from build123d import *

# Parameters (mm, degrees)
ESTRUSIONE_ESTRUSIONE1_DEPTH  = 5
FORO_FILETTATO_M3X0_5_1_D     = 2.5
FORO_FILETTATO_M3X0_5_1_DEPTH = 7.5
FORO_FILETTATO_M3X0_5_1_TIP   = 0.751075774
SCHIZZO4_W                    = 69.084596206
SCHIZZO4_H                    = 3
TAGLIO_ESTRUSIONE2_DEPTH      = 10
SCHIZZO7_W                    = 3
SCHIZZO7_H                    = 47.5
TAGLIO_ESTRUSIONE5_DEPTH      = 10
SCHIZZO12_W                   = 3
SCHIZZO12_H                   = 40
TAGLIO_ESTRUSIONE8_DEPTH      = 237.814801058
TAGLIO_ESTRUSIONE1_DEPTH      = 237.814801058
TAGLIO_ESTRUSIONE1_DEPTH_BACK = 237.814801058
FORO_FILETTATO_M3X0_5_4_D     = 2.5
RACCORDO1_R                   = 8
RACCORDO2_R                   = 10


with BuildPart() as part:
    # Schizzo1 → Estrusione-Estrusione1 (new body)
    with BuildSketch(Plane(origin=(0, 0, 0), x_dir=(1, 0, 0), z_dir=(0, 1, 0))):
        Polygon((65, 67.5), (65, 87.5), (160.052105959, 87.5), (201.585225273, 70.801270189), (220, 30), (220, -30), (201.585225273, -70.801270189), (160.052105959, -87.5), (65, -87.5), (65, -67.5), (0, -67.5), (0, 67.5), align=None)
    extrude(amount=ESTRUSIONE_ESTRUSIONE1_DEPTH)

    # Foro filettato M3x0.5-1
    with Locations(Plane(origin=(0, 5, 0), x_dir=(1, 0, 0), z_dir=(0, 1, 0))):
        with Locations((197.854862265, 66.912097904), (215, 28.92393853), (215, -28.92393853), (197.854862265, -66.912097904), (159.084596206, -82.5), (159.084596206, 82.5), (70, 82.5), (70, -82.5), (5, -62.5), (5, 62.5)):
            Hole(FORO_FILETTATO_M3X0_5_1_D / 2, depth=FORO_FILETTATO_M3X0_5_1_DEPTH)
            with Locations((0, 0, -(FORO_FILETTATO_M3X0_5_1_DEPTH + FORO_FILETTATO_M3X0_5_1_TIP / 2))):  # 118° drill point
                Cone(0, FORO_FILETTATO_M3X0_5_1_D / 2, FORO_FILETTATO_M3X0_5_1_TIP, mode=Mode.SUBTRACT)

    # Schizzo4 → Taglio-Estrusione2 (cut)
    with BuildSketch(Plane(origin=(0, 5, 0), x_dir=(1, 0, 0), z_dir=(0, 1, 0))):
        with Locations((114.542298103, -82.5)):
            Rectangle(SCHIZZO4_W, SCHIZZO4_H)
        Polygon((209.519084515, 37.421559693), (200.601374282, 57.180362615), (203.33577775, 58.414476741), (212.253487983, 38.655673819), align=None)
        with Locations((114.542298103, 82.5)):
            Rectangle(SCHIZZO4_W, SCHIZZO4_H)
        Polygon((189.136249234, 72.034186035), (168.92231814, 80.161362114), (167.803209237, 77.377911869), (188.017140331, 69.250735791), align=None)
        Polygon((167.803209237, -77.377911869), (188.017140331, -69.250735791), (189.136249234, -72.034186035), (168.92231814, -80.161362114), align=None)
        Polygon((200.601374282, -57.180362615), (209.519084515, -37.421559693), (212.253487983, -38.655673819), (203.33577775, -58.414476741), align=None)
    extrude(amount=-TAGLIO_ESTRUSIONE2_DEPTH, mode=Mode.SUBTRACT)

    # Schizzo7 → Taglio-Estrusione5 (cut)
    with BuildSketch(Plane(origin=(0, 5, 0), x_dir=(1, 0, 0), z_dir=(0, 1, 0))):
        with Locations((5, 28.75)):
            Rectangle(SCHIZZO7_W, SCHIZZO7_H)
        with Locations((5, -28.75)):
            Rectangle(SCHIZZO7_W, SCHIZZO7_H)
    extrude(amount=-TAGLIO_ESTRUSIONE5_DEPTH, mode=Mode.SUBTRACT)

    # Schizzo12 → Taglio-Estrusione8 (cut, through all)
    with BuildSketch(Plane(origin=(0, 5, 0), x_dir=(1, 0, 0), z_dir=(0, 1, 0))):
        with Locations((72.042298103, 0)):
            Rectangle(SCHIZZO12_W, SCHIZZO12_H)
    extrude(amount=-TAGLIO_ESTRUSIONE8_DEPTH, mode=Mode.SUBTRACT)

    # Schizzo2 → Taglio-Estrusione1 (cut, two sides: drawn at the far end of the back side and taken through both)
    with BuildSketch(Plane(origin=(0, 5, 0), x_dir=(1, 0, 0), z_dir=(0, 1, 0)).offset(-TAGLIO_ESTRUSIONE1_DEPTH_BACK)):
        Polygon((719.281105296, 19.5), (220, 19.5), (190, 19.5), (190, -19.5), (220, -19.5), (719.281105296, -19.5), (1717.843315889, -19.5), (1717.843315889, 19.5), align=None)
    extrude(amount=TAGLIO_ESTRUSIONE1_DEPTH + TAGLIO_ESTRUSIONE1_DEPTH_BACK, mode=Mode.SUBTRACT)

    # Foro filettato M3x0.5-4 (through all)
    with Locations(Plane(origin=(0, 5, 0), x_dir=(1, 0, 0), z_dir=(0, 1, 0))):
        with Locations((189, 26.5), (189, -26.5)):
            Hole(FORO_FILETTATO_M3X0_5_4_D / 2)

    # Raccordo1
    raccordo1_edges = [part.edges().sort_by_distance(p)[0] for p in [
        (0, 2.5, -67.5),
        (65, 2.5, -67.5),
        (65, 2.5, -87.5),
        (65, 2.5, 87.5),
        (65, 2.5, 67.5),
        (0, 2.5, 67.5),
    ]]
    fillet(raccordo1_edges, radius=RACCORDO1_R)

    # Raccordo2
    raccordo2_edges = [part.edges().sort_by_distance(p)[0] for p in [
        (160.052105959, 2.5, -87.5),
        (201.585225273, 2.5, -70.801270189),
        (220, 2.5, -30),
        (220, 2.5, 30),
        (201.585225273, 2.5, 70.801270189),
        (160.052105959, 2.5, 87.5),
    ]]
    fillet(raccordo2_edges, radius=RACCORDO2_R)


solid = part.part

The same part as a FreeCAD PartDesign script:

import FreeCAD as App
import Part
import Sketcher
from FreeCAD import Vector
Q = App.Units.Quantity


def edges_at(feature, points):
    """Names of the edges that pass closest to the given points."""
    edges = feature.Shape.Edges
    near = lambda p: min(range(len(edges)), key=lambda i: edges[i].distToShape(Part.Vertex(*p))[0])
    return sorted({f"Edge{near(p) + 1}" for p in points})


def add_polygon(sketch, points):
    """Adds a closed chain of lines whose ends are joined by coincident constraints."""
    first, n = sketch.GeometryCount, len(points)
    for a, b in zip(points, points[1:] + points[:1]):
        sketch.addGeometry(Part.LineSegment(App.Vector(*a, 0), App.Vector(*b, 0)), False)
    for i in range(n):
        sketch.addConstraint(Sketcher.Constraint("Coincident", first + i, 2, first + (i + 1) % n, 1))

doc = App.newDocument("Part")
body = doc.addObject("PartDesign::Body", "Body")

sketch1 = body.newObject("Sketcher::SketchObject", "Sketch")
sketch1.AttachmentSupport = (doc.getObject("XZ_Plane"), [""])
sketch1.MapMode = "FlatFace"
add_polygon(sketch1, [(65, -88), (65, -68), (0, -68), (0, 68), (65, 68), (65, 88), (160, 88), (202, 71), (220, 30), (220, -30), (202, -71), (160, -88)])
sketch1.addConstraint([
    Sketcher.Constraint("Vertical", 0),
    Sketcher.Constraint("Horizontal", 1),
    Sketcher.Constraint("Vertical", 2),
    Sketcher.Constraint("Horizontal", 3),
    Sketcher.Constraint("Vertical", 4),
    Sketcher.Constraint("Horizontal", 5),
    Sketcher.Constraint("Vertical", 8),
    Sketcher.Constraint("Horizontal", 11),
    Sketcher.Constraint("Symmetric", 1, 2, 2, 2, -1, 1),
    Sketcher.Constraint("Symmetric", 6, 2, 9, 2, -1),
    Sketcher.Constraint("Symmetric", 5, 2, 10, 2, -1),
    Sketcher.Constraint("Vertical", 0, 2, 3, 2),
    Sketcher.Constraint("Equal", 6, 7),
    Sketcher.Constraint("Equal", 7, 9),
    Sketcher.Constraint("DistanceX", 1, 2, 1, 1, Q("65 mm")),
    Sketcher.Constraint("DistanceY", 0, 1, 0, 2, Q("20 mm")),
    Sketcher.Constraint("DistanceY", 2, 1, 2, 2, Q("135 mm")),
    Sketcher.Constraint("DistanceY", 8, 2, 8, 1, Q("60 mm")),
    Sketcher.Constraint("DistanceX", -1, 1, 7, 2, Q("220 mm")),
    Sketcher.Constraint("DistanceX", 5, 1, 5, 2, Q("95.052106 mm")),
    Sketcher.Constraint("DistanceY", -1, 1, 6, 2, Q("70.80127 mm")),
])
pad1 = body.newObject("PartDesign::Pad", "Pad")
pad1.Profile = sketch1
pad1.Length = 5
pad1.Reversed = True

sketch2 = body.newObject("Sketcher::SketchObject", "Sketch001")
sketch2.AttachmentSupport = (doc.getObject("XZ_Plane"), [""])
sketch2.MapMode = "FlatFace"
sketch2.AttachmentOffset = App.Placement(Vector(0, 0, -5), App.Rotation())
sketch2.addGeometry([
    Part.Circle(Vector(197.9, -66.9, 0), Vector(0, 0, 1), 1.2),
    Part.Circle(Vector(215, -28.9, 0), Vector(0, 0, 1), 1.2),
    Part.Circle(Vector(215, 28.9, 0), Vector(0, 0, 1), 1.2),
    Part.Circle(Vector(197.9, 66.9, 0), Vector(0, 0, 1), 1.2),
    Part.Circle(Vector(159.1, 82.5, 0), Vector(0, 0, 1), 1.2),
    Part.Circle(Vector(159.1, -82.5, 0), Vector(0, 0, 1), 1.2),
    Part.Circle(Vector(70, -82.5, 0), Vector(0, 0, 1), 1.2),
    Part.Circle(Vector(70, 82.5, 0), Vector(0, 0, 1), 1.2),
    Part.Circle(Vector(5, 62.5, 0), Vector(0, 0, 1), 1.2),
    Part.Circle(Vector(5, -62.5, 0), Vector(0, 0, 1), 1.2),
], False)
sketch2.addConstraint([
    Sketcher.Constraint("Equal", 0, 1),
    Sketcher.Constraint("Equal", 1, 2),
    Sketcher.Constraint("Equal", 2, 3),
    Sketcher.Constraint("Equal", 3, 4),
    Sketcher.Constraint("Equal", 4, 5),
    Sketcher.Constraint("Equal", 5, 6),
    Sketcher.Constraint("Equal", 6, 7),
    Sketcher.Constraint("Equal", 7, 8),
    Sketcher.Constraint("Equal", 8, 9),
    Sketcher.Constraint("Symmetric", 1, 3, 2, 3, -1),
    Sketcher.Constraint("Symmetric", 0, 3, 3, 3, -1),
    Sketcher.Constraint("Symmetric", 4, 3, 5, 3, -1),
    Sketcher.Constraint("Symmetric", 6, 3, 7, 3, -1),
    Sketcher.Constraint("Symmetric", 8, 3, 9, 3, -1),
    Sketcher.Constraint("Horizontal", 5, 3, 6, 3),
    Sketcher.Constraint("Diameter", 0, Q("2.5 mm")),
    Sketcher.Constraint("DistanceX", -1, 1, 1, 3, Q("215 mm")),
    Sketcher.Constraint("DistanceX", -1, 1, 6, 3, Q("70 mm")),
    Sketcher.Constraint("DistanceX", -1, 1, 8, 3, Q("5 mm")),
    Sketcher.Constraint("DistanceY", 5, 3, 4, 3, Q("165 mm")),
    Sketcher.Constraint("DistanceY", 8, 3, 7, 3, Q("20 mm")),
    Sketcher.Constraint("DistanceY", 1, 3, -1, 1, Q("28.923939 mm")),
    Sketcher.Constraint("DistanceY", 0, 3, 1, 3, Q("37.988159 mm")),
    Sketcher.Constraint("DistanceX", -1, 1, 0, 3, Q("197.854862 mm")),
    Sketcher.Constraint("DistanceX", -1, 1, 4, 3, Q("159.084596 mm")),
])
doc.recompute()
hole = body.newObject("PartDesign::Hole", "Hole")
hole.Profile = sketch2
hole.ThreadType = "None"
hole.Diameter = 2.5
hole.DepthType = "Dimension"
hole.Depth = 7.5
hole.DrillPoint = "Angled"
hole.DrillPointAngle = 118
hole.Reversed = True

sketch3 = body.newObject("Sketcher::SketchObject", "Sketch002")
sketch3.AttachmentSupport = (doc.getObject("XZ_Plane"), [""])
sketch3.MapMode = "FlatFace"
sketch3.AttachmentOffset = App.Placement(Vector(0, 0, -5), App.Rotation())
add_polygon(sketch3, [(80, 81), (80, 84), (149.1, 84), (149.1, 81)])
add_polygon(sketch3, [(200.6, -57.2), (209.5, -37.4), (212.3, -38.7), (203.3, -58.4)])
add_polygon(sketch3, [(80, -84), (80, -81), (149.1, -81), (149.1, -84)])
add_polygon(sketch3, [(189.1, -72), (168.9, -80.2), (167.8, -77.4), (188, -69.3)])
add_polygon(sketch3, [(188, 69.3), (167.8, 77.4), (168.9, 80.2), (189.1, 72)])
add_polygon(sketch3, [(209.5, 37.4), (200.6, 57.2), (203.3, 58.4), (212.3, 38.7)])
sketch3.addConstraint([
    Sketcher.Constraint("Vertical", 0),
    Sketcher.Constraint("Horizontal", 1),
    Sketcher.Constraint("Vertical", 2),
    Sketcher.Constraint("Horizontal", 3),
    Sketcher.Constraint("Vertical", 8),
    Sketcher.Constraint("Horizontal", 9),
    Sketcher.Constraint("Vertical", 10),
    Sketcher.Constraint("Horizontal", 11),
    Sketcher.Constraint("Symmetric", 3, 2, 8, 2, -1),
    Sketcher.Constraint("Symmetric", 1, 2, 10, 2, -1),
    Sketcher.Constraint("Symmetric", 13, 2, 16, 2, -1),
    Sketcher.Constraint("Symmetric", 12, 2, 17, 2, -1),
    Sketcher.Constraint("Symmetric", 15, 2, 18, 2, -1),
    Sketcher.Constraint("Symmetric", 14, 2, 19, 2, -1),
    Sketcher.Constraint("Symmetric", 7, 2, 20, 2, -1),
    Sketcher.Constraint("Symmetric", 6, 2, 21, 2, -1),
    Sketcher.Constraint("Symmetric", 5, 2, 22, 2, -1),
    Sketcher.Constraint("Symmetric", 4, 2, 23, 2, -1),
    Sketcher.Constraint("Perpendicular", 4, 5),
    Sketcher.Constraint("Perpendicular", 5, 6),
    Sketcher.Constraint("Perpendicular", 6, 7),
    Sketcher.Constraint("Perpendicular", 12, 13),
    Sketcher.Constraint("Perpendicular", 13, 14),
    Sketcher.Constraint("Perpendicular", 14, 15),
    Sketcher.Constraint("Equal", 7, 13),
    Sketcher.Constraint("DistanceY", 0, 1, 0, 2, Q("3 mm")),
    Sketcher.Constraint("Distance", 5, Q("3 mm")),
    Sketcher.Constraint("DistanceX", -1, 1, 0, 2, Q("80 mm")),
    Sketcher.Constraint("DistanceY", -1, 1, 0, 2, Q("84 mm")),
    Sketcher.Constraint("DistanceY", 12, 2, 7, 2, Q("22.980999 mm")),
    Sketcher.Constraint("DistanceX", 1, 1, 1, 2, Q("69.084596 mm")),
    Sketcher.Constraint("DistanceY", 4, 2, -1, 1, Q("37.42156 mm")),
    Sketcher.Constraint("DistanceX", -1, 1, 12, 2, Q("168.922318 mm")),
    Sketcher.Constraint("DistanceX", -1, 1, 13, 2, Q("167.803209 mm")),
    Sketcher.Constraint("DistanceY", 13, 2, -1, 1, Q("77.377912 mm")),
    Sketcher.Constraint("DistanceX", -1, 1, 14, 2, Q("188.01714 mm")),
    Sketcher.Constraint("DistanceX", 2, 2, 4, 2, Q("60.434488 mm")),
    Sketcher.Constraint("DistanceX", 2, 2, 5, 2, Q("63.168892 mm")),
])
pocket1 = body.newObject("PartDesign::Pocket", "Pocket")
pocket1.Profile = sketch3
pocket1.Length = 10
pocket1.Reversed = True

sketch4 = body.newObject("Sketcher::SketchObject", "Sketch003")
sketch4.AttachmentSupport = (doc.getObject("XZ_Plane"), [""])
sketch4.MapMode = "FlatFace"
sketch4.AttachmentOffset = App.Placement(Vector(0, 0, -5), App.Rotation())
add_polygon(sketch4, [(3.5, -52.5), (3.5, -5), (6.5, -5), (6.5, -52.5)])
add_polygon(sketch4, [(3.5, 5), (3.5, 52.5), (6.5, 52.5), (6.5, 5)])
sketch4.addConstraint([
    Sketcher.Constraint("Vertical", 0),
    Sketcher.Constraint("Horizontal", 1),
    Sketcher.Constraint("Vertical", 2),
    Sketcher.Constraint("Horizontal", 3),
    Sketcher.Constraint("Vertical", 4),
    Sketcher.Constraint("Horizontal", 5),
    Sketcher.Constraint("Vertical", 6),
    Sketcher.Constraint("Horizontal", 7),
    Sketcher.Constraint("Symmetric", 3, 2, 4, 2, -1),
    Sketcher.Constraint("Symmetric", 1, 2, 6, 2, -1),
    Sketcher.Constraint("DistanceX", 1, 1, 1, 2, Q("3 mm")),
    Sketcher.Constraint("DistanceY", 0, 1, 0, 2, Q("47.5 mm")),
    Sketcher.Constraint("DistanceY", 0, 2, -1, 1, Q("5 mm")),
    Sketcher.Constraint("DistanceX", -1, 1, 0, 2, Q("3.5 mm")),
])
pocket2 = body.newObject("PartDesign::Pocket", "Pocket001")
pocket2.Profile = sketch4
pocket2.Length = 10
pocket2.Reversed = True

sketch5 = body.newObject("Sketcher::SketchObject", "Sketch004")
sketch5.AttachmentSupport = (doc.getObject("XZ_Plane"), [""])
sketch5.MapMode = "FlatFace"
sketch5.AttachmentOffset = App.Placement(Vector(0, 0, -5), App.Rotation())
add_polygon(sketch5, [(70.5, -20), (70.5, 20), (73.5, 20), (73.5, -20)])
sketch5.addConstraint([
    Sketcher.Constraint("Vertical", 0),
    Sketcher.Constraint("Horizontal", 1),
    Sketcher.Constraint("Vertical", 2),
    Sketcher.Constraint("Horizontal", 3),
    Sketcher.Constraint("DistanceX", 1, 1, 1, 2, Q("3 mm")),
    Sketcher.Constraint("DistanceY", 0, 1, 0, 2, Q("40 mm")),
    Sketcher.Constraint("DistanceY", -1, 1, 0, 2, Q("20 mm")),
    Sketcher.Constraint("DistanceX", -1, 1, 0, 2, Q("70.542298 mm")),
])
pocket3 = body.newObject("PartDesign::Pocket", "Pocket002")
pocket3.Profile = sketch5
pocket3.Type = "ThroughAll"
pocket3.Reversed = True

sketch6 = body.newObject("Sketcher::SketchObject", "Sketch005")
sketch6.AttachmentSupport = (doc.getObject("XZ_Plane"), [""])
sketch6.MapMode = "FlatFace"
sketch6.AttachmentOffset = App.Placement(Vector(0, 0, -5), App.Rotation())
add_polygon(sketch6, [(190, -20), (190, 20), (1718, 20), (1718, -20)])
sketch6.addConstraint([
    Sketcher.Constraint("Vertical", 0),
    Sketcher.Constraint("Horizontal", 1),
    Sketcher.Constraint("Vertical", 2),
    Sketcher.Constraint("Horizontal", 3),
    Sketcher.Constraint("DistanceY", 0, 1, 0, 2, Q("39 mm")),
    Sketcher.Constraint("DistanceX", -1, 1, 0, 2, Q("190 mm")),
    Sketcher.Constraint("DistanceY", -1, 1, 0, 2, Q("19.5 mm")),
    Sketcher.Constraint("DistanceX", 1, 1, 1, 2, Q("1527.843316 mm")),
])
pocket4 = body.newObject("PartDesign::Pocket", "Pocket003")
pocket4.Profile = sketch6
pocket4.Type = "ThroughAll"
pocket4.Midplane = True

sketch7 = body.newObject("Sketcher::SketchObject", "Sketch006")
sketch7.AttachmentSupport = (doc.getObject("XZ_Plane"), [""])
sketch7.MapMode = "FlatFace"
sketch7.AttachmentOffset = App.Placement(Vector(0, 0, -5), App.Rotation())
sketch7.addGeometry([
    Part.Circle(Vector(189, -26.5, 0), Vector(0, 0, 1), 1.2),
    Part.Circle(Vector(189, 26.5, 0), Vector(0, 0, 1), 1.2),
], False)
sketch7.addConstraint([
    Sketcher.Constraint("Equal", 0, 1),
    Sketcher.Constraint("Symmetric", 0, 3, 1, 3, -1),
    Sketcher.Constraint("Diameter", 0, Q("2.5 mm")),
    Sketcher.Constraint("DistanceX", -1, 1, 0, 3, Q("189 mm")),
    Sketcher.Constraint("DistanceY", 0, 3, 1, 3, Q("53 mm")),
])
doc.recompute()
hole2 = body.newObject("PartDesign::Hole", "Hole001")
hole2.Profile = sketch7
hole2.ThreadType = "None"
hole2.Diameter = 2.5
hole2.DepthType = "ThroughAll"
hole2.Reversed = True
doc.recompute()

fillet = body.newObject("PartDesign::Fillet", "Fillet")
fillet.Base = (hole2, edges_at(hole2, [
    (0, 2.5, -67.5),
    (65, 2.5, -67.5),
    (65, 2.5, -87.5),
    (65, 2.5, 87.5),
    (65, 2.5, 67.5),
    (0, 2.5, 67.5),
]))
fillet.Radius = 8
doc.recompute()

fillet2 = body.newObject("PartDesign::Fillet", "Fillet001")
fillet2.Base = (fillet, edges_at(fillet, [
    (160.052, 2.5, -87.5),
    (201.585, 2.5, -70.801),
    (220, 2.5, -30),
    (220, 2.5, 30),
    (201.585, 2.5, 70.801),
    (160.052, 2.5, 87.5),
]))
fillet2.Radius = 10

doc.recompute()
